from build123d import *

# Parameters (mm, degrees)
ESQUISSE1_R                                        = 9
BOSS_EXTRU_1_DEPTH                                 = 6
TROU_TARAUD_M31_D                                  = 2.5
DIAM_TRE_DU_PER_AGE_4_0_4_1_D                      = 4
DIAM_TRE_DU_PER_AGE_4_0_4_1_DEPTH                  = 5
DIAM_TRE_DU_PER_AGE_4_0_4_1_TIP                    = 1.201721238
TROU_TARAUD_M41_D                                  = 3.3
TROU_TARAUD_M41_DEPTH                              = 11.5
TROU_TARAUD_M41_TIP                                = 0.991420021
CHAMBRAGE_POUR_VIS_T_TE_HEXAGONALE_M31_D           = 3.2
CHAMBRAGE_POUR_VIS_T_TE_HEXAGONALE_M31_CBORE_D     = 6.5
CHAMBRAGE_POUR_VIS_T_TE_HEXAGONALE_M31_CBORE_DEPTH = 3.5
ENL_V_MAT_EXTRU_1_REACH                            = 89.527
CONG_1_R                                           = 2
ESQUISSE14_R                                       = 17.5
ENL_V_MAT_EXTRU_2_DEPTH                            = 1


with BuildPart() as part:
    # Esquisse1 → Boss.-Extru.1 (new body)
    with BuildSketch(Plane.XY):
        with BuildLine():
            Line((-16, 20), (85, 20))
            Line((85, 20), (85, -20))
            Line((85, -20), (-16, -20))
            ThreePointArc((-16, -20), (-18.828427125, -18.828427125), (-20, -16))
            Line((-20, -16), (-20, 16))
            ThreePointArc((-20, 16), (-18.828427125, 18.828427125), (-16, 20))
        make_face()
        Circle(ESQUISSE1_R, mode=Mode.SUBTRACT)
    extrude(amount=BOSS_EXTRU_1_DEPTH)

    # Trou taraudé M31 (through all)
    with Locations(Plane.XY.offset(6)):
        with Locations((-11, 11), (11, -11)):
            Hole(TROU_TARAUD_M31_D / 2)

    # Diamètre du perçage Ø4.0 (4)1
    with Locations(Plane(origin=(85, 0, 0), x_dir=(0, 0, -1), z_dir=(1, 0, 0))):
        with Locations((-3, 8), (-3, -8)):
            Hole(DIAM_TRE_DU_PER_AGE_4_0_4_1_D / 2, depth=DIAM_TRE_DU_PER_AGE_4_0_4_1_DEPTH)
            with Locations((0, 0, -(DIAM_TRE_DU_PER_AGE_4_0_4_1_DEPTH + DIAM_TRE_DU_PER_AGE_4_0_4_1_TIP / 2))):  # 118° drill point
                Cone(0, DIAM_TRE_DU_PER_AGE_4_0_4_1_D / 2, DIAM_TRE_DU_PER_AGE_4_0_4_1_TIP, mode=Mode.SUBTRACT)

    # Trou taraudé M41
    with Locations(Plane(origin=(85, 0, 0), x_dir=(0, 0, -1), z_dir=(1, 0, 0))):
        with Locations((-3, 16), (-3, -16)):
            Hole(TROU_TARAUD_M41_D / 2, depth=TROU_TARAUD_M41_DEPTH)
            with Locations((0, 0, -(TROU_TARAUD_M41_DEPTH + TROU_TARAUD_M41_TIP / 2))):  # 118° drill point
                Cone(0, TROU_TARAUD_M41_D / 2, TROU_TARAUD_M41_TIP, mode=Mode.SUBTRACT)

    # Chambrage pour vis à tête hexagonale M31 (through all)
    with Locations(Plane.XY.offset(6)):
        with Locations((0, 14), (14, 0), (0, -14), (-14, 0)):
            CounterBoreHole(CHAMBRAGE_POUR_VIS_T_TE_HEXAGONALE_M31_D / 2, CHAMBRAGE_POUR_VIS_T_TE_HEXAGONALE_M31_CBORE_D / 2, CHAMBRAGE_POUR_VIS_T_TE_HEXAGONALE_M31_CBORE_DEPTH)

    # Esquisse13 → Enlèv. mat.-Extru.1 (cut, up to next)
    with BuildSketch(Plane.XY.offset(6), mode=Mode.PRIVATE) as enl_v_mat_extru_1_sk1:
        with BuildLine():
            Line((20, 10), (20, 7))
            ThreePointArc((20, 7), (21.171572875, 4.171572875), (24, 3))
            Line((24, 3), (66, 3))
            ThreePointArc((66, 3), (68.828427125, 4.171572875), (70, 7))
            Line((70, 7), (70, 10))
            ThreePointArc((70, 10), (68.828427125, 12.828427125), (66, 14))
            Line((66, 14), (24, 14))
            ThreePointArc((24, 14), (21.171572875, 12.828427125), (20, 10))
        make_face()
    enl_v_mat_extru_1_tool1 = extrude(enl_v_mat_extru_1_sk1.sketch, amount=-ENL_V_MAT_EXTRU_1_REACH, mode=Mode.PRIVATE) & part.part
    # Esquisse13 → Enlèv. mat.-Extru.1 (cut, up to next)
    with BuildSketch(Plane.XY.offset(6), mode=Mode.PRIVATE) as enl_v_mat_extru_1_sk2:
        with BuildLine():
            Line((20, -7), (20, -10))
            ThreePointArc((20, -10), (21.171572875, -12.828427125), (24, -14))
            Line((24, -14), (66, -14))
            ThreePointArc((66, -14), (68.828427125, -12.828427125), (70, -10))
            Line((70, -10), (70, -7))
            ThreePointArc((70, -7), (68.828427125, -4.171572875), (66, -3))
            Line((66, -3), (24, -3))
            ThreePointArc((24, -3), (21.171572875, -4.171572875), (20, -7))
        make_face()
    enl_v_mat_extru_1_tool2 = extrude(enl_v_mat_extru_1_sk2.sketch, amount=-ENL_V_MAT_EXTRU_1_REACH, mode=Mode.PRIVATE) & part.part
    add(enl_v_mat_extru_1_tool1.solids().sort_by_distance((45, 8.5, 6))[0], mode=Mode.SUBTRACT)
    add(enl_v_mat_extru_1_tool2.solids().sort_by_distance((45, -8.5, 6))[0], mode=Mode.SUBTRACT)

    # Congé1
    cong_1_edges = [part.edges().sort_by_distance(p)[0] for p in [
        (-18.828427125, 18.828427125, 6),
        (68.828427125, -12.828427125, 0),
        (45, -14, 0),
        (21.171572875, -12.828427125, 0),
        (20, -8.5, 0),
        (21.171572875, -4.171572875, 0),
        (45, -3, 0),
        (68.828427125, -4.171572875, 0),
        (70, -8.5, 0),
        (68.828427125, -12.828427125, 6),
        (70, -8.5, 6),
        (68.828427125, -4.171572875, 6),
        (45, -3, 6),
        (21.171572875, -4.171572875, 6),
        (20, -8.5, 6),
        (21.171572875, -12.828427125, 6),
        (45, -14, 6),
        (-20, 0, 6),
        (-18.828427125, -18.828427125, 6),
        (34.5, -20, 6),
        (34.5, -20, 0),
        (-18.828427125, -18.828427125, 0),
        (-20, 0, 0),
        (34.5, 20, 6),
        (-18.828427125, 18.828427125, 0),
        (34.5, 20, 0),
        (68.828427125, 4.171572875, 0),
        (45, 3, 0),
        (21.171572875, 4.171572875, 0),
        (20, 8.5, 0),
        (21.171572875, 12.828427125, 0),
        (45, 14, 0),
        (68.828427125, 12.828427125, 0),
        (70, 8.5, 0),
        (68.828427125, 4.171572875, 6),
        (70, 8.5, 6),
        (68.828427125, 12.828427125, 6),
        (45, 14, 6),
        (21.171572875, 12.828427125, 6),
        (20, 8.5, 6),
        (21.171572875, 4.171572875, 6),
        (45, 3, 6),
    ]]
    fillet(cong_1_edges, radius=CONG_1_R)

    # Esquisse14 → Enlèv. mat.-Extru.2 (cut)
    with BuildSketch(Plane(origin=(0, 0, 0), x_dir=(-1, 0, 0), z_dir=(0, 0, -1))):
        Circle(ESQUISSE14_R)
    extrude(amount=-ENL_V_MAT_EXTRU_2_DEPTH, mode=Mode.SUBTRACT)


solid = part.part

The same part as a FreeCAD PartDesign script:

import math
import FreeCAD as App
import Part
import Sketcher

V = App.Vector
Q = App.Units.Quantity


def edges_at(feature, points):
    """Names of the edges that pass closest to the given points."""
    edges = feature.Shape.Edges
    near = lambda p: min(range(len(edges)), key=lambda i: edges[i].distToShape(Part.Vertex(*p))[0])
    return sorted({f"Edge{near(p) + 1}" for p in points})

doc = App.newDocument("Part")
body = doc.addObject("PartDesign::Body", "Body")

sketch1 = doc.addObject("Sketcher::SketchObject", "Sketch")
body.addObject(sketch1)
sketch1.AttachmentSupport = (doc.XY_Plane, [""])
sketch1.MapMode = "FlatFace"
sketch1.addGeometry(Part.LineSegment(V(85, 20, 0), V(-16, 20, 0)), False)
sketch1.addGeometry(Part.ArcOfCircle(Part.Circle(V(-16, 16, 0), V(0, 0, 1), 4), math.radians(90), math.radians(180)), False)
sketch1.addGeometry(Part.LineSegment(V(-20, 16, 0), V(-20, -16, 0)), False)
sketch1.addGeometry(Part.ArcOfCircle(Part.Circle(V(-16, -16, 0), V(0, 0, 1), 4), math.radians(180), math.radians(270)), False)
sketch1.addGeometry(Part.LineSegment(V(-16, -20, 0), V(85, -20, 0)), False)
sketch1.addGeometry(Part.LineSegment(V(85, -20, 0), V(85, 20, 0)), False)
sketch1.addGeometry(Part.Circle(V(0, 0, 0), V(0, 0, 1), 9), False)
sketch1.addConstraint(Sketcher.Constraint("Tangent", 0, 2, 1, 1))
sketch1.addConstraint(Sketcher.Constraint("Tangent", 1, 2, 2, 1))
sketch1.addConstraint(Sketcher.Constraint("Tangent", 2, 2, 3, 1))
sketch1.addConstraint(Sketcher.Constraint("Tangent", 3, 2, 4, 1))
sketch1.addConstraint(Sketcher.Constraint("Coincident", 4, 2, 5, 1))
sketch1.addConstraint(Sketcher.Constraint("Coincident", 5, 2, 0, 1))
sketch1.addConstraint(Sketcher.Constraint("Horizontal", 0))
sketch1.addConstraint(Sketcher.Constraint("Vertical", 2))
sketch1.addConstraint(Sketcher.Constraint("Horizontal", 4))
sketch1.addConstraint(Sketcher.Constraint("Vertical", 5))
sketch1.addConstraint(Sketcher.Constraint("Coincident", 6, 3, -1, 1))
sketch1.addConstraint(Sketcher.Constraint("Equal", 1, 3))
sketch1.addConstraint(Sketcher.Constraint("Diameter", 6, Q("18 mm")))
sketch1.addConstraint(Sketcher.Constraint("Radius", 1, Q("4 mm")))
sketch1.addConstraint(Sketcher.Constraint("DistanceX", 0, 2, 0, 1, Q("101 mm")))
sketch1.addConstraint(Sketcher.Constraint("DistanceY", 2, 2, 2, 1, Q("32 mm")))
sketch1.addConstraint(Sketcher.Constraint("DistanceX", 1, 3, -1, 1, Q("16 mm")))
sketch1.addConstraint(Sketcher.Constraint("DistanceY", -1, 1, 1, 3, Q("16 mm")))
pad1 = doc.addObject("PartDesign::Pad", "Pad")
body.addObject(pad1)
pad1.Profile = sketch1
pad1.Length = 6

sketch2 = doc.addObject("Sketcher::SketchObject", "Sketch001")
body.addObject(sketch2)
sketch2.AttachmentSupport = (doc.XY_Plane, [""])
sketch2.MapMode = "FlatFace"
sketch2.AttachmentOffset = App.Placement(V(0, 0, 6), App.Rotation())
sketch2.addGeometry(Part.Circle(V(-11, 11, 0), V(0, 0, 1), 1.25), False)
sketch2.addGeometry(Part.Circle(V(11, -11, 0), V(0, 0, 1), 1.25), False)
sketch2.addConstraint(Sketcher.Constraint("Equal", 0, 1))
sketch2.addConstraint(Sketcher.Constraint("Symmetric", 0, 3, 1, 3, -1, 1))
sketch2.addConstraint(Sketcher.Constraint("Diameter", 0, Q("2.5 mm")))
sketch2.addConstraint(Sketcher.Constraint("DistanceX", 0, 3, -1, 1, Q("11 mm")))
sketch2.addConstraint(Sketcher.Constraint("DistanceY", -1, 1, 0, 3, Q("11 mm")))
doc.recompute()
hole = doc.addObject("PartDesign::Hole", "Hole")
body.addObject(hole)
hole.Profile = sketch2
hole.ThreadType = "None"
hole.Diameter = 2.5
hole.DepthType = "ThroughAll"

sketch3 = doc.addObject("Sketcher::SketchObject", "Sketch002")
body.addObject(sketch3)
sketch3.AttachmentSupport = (doc.YZ_Plane, [""])
sketch3.MapMode = "FlatFace"
sketch3.AttachmentOffset = App.Placement(V(0, 0, 85), App.Rotation())
sketch3.addGeometry(Part.Circle(V(8, 3, 0), V(0, 0, 1), 2), False)
sketch3.addGeometry(Part.Circle(V(-8, 3, 0), V(0, 0, 1), 2), False)
sketch3.addConstraint(Sketcher.Constraint("Equal", 0, 1))
sketch3.addConstraint(Sketcher.Constraint("Symmetric", 0, 3, 1, 3, -2))
sketch3.addConstraint(Sketcher.Constraint("Diameter", 0, Q("4 mm")))
sketch3.addConstraint(Sketcher.Constraint("DistanceX", -1, 1, 0, 3, Q("8 mm")))
sketch3.addConstraint(Sketcher.Constraint("DistanceY", -1, 1, 0, 3, Q("3 mm")))
doc.recompute()
hole2 = doc.addObject("PartDesign::Hole", "Hole001")
body.addObject(hole2)
hole2.Profile = sketch3
hole2.ThreadType = "None"
hole2.Diameter = 4
hole2.DepthType = "Dimension"
hole2.Depth = 5
hole2.DrillPoint = "Angled"
hole2.DrillPointAngle = 118

sketch4 = doc.addObject("Sketcher::SketchObject", "Sketch003")
body.addObject(sketch4)
sketch4.AttachmentSupport = (doc.YZ_Plane, [""])
sketch4.MapMode = "FlatFace"
sketch4.AttachmentOffset = App.Placement(V(0, 0, 85), App.Rotation())
sketch4.addGeometry(Part.Circle(V(16, 3, 0), V(0, 0, 1), 1.65), False)
sketch4.addGeometry(Part.Circle(V(-16, 3, 0), V(0, 0, 1), 1.65), False)
sketch4.addConstraint(Sketcher.Constraint("Equal", 0, 1))
sketch4.addConstraint(Sketcher.Constraint("Symmetric", 0, 3, 1, 3, -2))
sketch4.addConstraint(Sketcher.Constraint("Diameter", 0, Q("3.3 mm")))
sketch4.addConstraint(Sketcher.Constraint("DistanceX", -1, 1, 0, 3, Q("16 mm")))
sketch4.addConstraint(Sketcher.Constraint("DistanceY", -1, 1, 0, 3, Q("3 mm")))
doc.recompute()
hole3 = doc.addObject("PartDesign::Hole", "Hole002")
body.addObject(hole3)
hole3.Profile = sketch4
hole3.ThreadType = "None"
hole3.Diameter = 3.3
hole3.DepthType = "Dimension"
hole3.Depth = 11.5
hole3.DrillPoint = "Angled"
hole3.DrillPointAngle = 118

sketch5 = doc.addObject("Sketcher::SketchObject", "Sketch004")
body.addObject(sketch5)
sketch5.AttachmentSupport = (doc.XY_Plane, [""])
sketch5.MapMode = "FlatFace"
sketch5.AttachmentOffset = App.Placement(V(0, 0, 6), App.Rotation())
sketch5.addGeometry(Part.Circle(V(0, 14, 0), V(0, 0, 1), 1.6), False)
sketch5.addGeometry(Part.Circle(V(14, 0, 0), V(0, 0, 1), 1.6), False)
sketch5.addGeometry(Part.Circle(V(0, -14, 0), V(0, 0, 1), 1.6), False)
sketch5.addGeometry(Part.Circle(V(-14, 0, 0), V(0, 0, 1), 1.6), False)
sketch5.addConstraint(Sketcher.Constraint("Equal", 0, 1))
sketch5.addConstraint(Sketcher.Constraint("Equal", 1, 2))
sketch5.addConstraint(Sketcher.Constraint("Equal", 2, 3))
sketch5.addConstraint(Sketcher.Constraint("Symmetric", 0, 3, 2, 3, -1, 1))
sketch5.addConstraint(Sketcher.Constraint("Symmetric", 1, 3, 3, 3, -1, 1))
sketch5.addConstraint(Sketcher.Constraint("PointOnObject", 0, 3, -2))
sketch5.addConstraint(Sketcher.Constraint("PointOnObject", 1, 3, -1))
sketch5.addConstraint(Sketcher.Constraint("Diameter", 0, Q("3.2 mm")))
sketch5.addConstraint(Sketcher.Constraint("DistanceY", -1, 1, 0, 3, Q("14 mm")))
sketch5.addConstraint(Sketcher.Constraint("DistanceX", -1, 1, 1, 3, Q("14 mm")))
doc.recompute()
hole4 = doc.addObject("PartDesign::Hole", "Hole003")
body.addObject(hole4)
hole4.Profile = sketch5
hole4.ThreadType = "None"
hole4.Diameter = 3.2
hole4.DepthType = "ThroughAll"
hole4.HoleCutType = "Counterbore"
hole4.HoleCutDiameter = 6.5
hole4.HoleCutDepth = 3.5

sketch6 = doc.addObject("Sketcher::SketchObject", "Sketch005")
body.addObject(sketch6)
sketch6.AttachmentSupport = (doc.XY_Plane, [""])
sketch6.MapMode = "FlatFace"
sketch6.AttachmentOffset = App.Placement(V(0, 0, 6), App.Rotation())
sketch6.addGeometry(Part.LineSegment(V(20, 10, 0), V(20, 7, 0)), False)
sketch6.addGeometry(Part.ArcOfCircle(Part.Circle(V(24, 7, 0), V(0, 0, 1), 4), math.radians(180), math.radians(270)), False)
sketch6.addGeometry(Part.LineSegment(V(24, 3, 0), V(66, 3, 0)), False)
sketch6.addGeometry(Part.ArcOfCircle(Part.Circle(V(66, 7, 0), V(0, 0, 1), 4), math.radians(-90), math.radians(0)), False)
sketch6.addGeometry(Part.LineSegment(V(70, 7, 0), V(70, 10, 0)), False)
sketch6.addGeometry(Part.ArcOfCircle(Part.Circle(V(66, 10, 0), V(0, 0, 1), 4), math.radians(0), math.radians(90)), False)
sketch6.addGeometry(Part.LineSegment(V(66, 14, 0), V(24, 14, 0)), False)
sketch6.addGeometry(Part.ArcOfCircle(Part.Circle(V(24, 10, 0), V(0, 0, 1), 4), math.radians(90), math.radians(180)), False)
sketch6.addConstraint(Sketcher.Constraint("Tangent", 0, 2, 1, 1))
sketch6.addConstraint(Sketcher.Constraint("Tangent", 1, 2, 2, 1))
sketch6.addConstraint(Sketcher.Constraint("Tangent", 2, 2, 3, 1))
sketch6.addConstraint(Sketcher.Constraint("Tangent", 3, 2, 4, 1))
sketch6.addConstraint(Sketcher.Constraint("Tangent", 4, 2, 5, 1))
sketch6.addConstraint(Sketcher.Constraint("Tangent", 5, 2, 6, 1))
sketch6.addConstraint(Sketcher.Constraint("Tangent", 6, 2, 7, 1))
sketch6.addConstraint(Sketcher.Constraint("Tangent", 7, 2, 0, 1))
sketch6.addConstraint(Sketcher.Constraint("Vertical", 0))
sketch6.addConstraint(Sketcher.Constraint("Horizontal", 2))
sketch6.addConstraint(Sketcher.Constraint("Vertical", 4))
sketch6.addConstraint(Sketcher.Constraint("Horizontal", 6))
sketch6.addConstraint(Sketcher.Constraint("Equal", 1, 3))
sketch6.addConstraint(Sketcher.Constraint("Equal", 3, 5))
sketch6.addConstraint(Sketcher.Constraint("Equal", 5, 7))
sketch6.addConstraint(Sketcher.Constraint("Radius", 1, Q("4 mm")))
sketch6.addConstraint(Sketcher.Constraint("DistanceX", 2, 1, 2, 2, Q("42 mm")))
sketch6.addConstraint(Sketcher.Constraint("DistanceY", 0, 2, 0, 1, Q("3 mm")))
sketch6.addConstraint(Sketcher.Constraint("DistanceX", -1, 1, 1, 3, Q("24 mm")))
sketch6.addConstraint(Sketcher.Constraint("DistanceY", -1, 1, 1, 3, Q("7 mm")))
pocket1 = doc.addObject("PartDesign::Pocket", "Pocket")
body.addObject(pocket1)
pocket1.Profile = sketch6
pocket1.Type = "UpToFirst"

sketch7 = doc.addObject("Sketcher::SketchObject", "Sketch006")
body.addObject(sketch7)
sketch7.AttachmentSupport = (doc.XY_Plane, [""])
sketch7.MapMode = "FlatFace"
sketch7.AttachmentOffset = App.Placement(V(0, 0, 6), App.Rotation())
sketch7.addGeometry(Part.LineSegment(V(20, -7, 0), V(20, -10, 0)), False)
sketch7.addGeometry(Part.ArcOfCircle(Part.Circle(V(24, -10, 0), V(0, 0, 1), 4), math.radians(180), math.radians(270)), False)
sketch7.addGeometry(Part.LineSegment(V(24, -14, 0), V(66, -14, 0)), False)
sketch7.addGeometry(Part.ArcOfCircle(Part.Circle(V(66, -10, 0), V(0, 0, 1), 4), math.radians(-90), math.radians(0)), False)
sketch7.addGeometry(Part.LineSegment(V(70, -10, 0), V(70, -7, 0)), False)
sketch7.addGeometry(Part.ArcOfCircle(Part.Circle(V(66, -7, 0), V(0, 0, 1), 4), math.radians(0), math.radians(90)), False)
sketch7.addGeometry(Part.LineSegment(V(66, -3, 0), V(24, -3, 0)), False)
sketch7.addGeometry(Part.ArcOfCircle(Part.Circle(V(24, -7, 0), V(0, 0, 1), 4), math.radians(90), math.radians(180)), False)
sketch7.addConstraint(Sketcher.Constraint("Tangent", 0, 2, 1, 1))
sketch7.addConstraint(Sketcher.Constraint("Tangent", 1, 2, 2, 1))
sketch7.addConstraint(Sketcher.Constraint("Tangent", 2, 2, 3, 1))
sketch7.addConstraint(Sketcher.Constraint("Tangent", 3, 2, 4, 1))
sketch7.addConstraint(Sketcher.Constraint("Tangent", 4, 2, 5, 1))
sketch7.addConstraint(Sketcher.Constraint("Tangent", 5, 2, 6, 1))
sketch7.addConstraint(Sketcher.Constraint("Tangent", 6, 2, 7, 1))
sketch7.addConstraint(Sketcher.Constraint("Tangent", 7, 2, 0, 1))
sketch7.addConstraint(Sketcher.Constraint("Vertical", 0))
sketch7.addConstraint(Sketcher.Constraint("Horizontal", 2))
sketch7.addConstraint(Sketcher.Constraint("Vertical", 4))
sketch7.addConstraint(Sketcher.Constraint("Horizontal", 6))
sketch7.addConstraint(Sketcher.Constraint("Equal", 1, 3))
sketch7.addConstraint(Sketcher.Constraint("Equal", 3, 5))
sketch7.addConstraint(Sketcher.Constraint("Equal", 5, 7))
sketch7.addConstraint(Sketcher.Constraint("Radius", 1, Q("4 mm")))
sketch7.addConstraint(Sketcher.Constraint("DistanceX", 2, 1, 2, 2, Q("42 mm")))
sketch7.addConstraint(Sketcher.Constraint("DistanceY", 0, 2, 0, 1, Q("3 mm")))
sketch7.addConstraint(Sketcher.Constraint("DistanceX", -1, 1, 1, 3, Q("24 mm")))
sketch7.addConstraint(Sketcher.Constraint("DistanceY", 1, 3, -1, 1, Q("10 mm")))
pocket2 = doc.addObject("PartDesign::Pocket", "Pocket001")
body.addObject(pocket2)
pocket2.Profile = sketch7
pocket2.Type = "UpToFirst"
doc.recompute()

fillet = doc.addObject("PartDesign::Fillet", "Fillet")
body.addObject(fillet)
fillet.Base = (pocket2, edges_at(pocket2, [
    (-18.828, 18.828, 6),
    (68.828, -12.828, 0),
    (45, -14, 0),
    (21.172, -12.828, 0),
    (20, -8.5, 0),
    (21.172, -4.172, 0),
    (45, -3, 0),
    (68.828, -4.172, 0),
    (70, -8.5, 0),
    (68.828, -12.828, 6),
    (70, -8.5, 6),
    (68.828, -4.172, 6),
    (45, -3, 6),
    (21.172, -4.172, 6),
    (20, -8.5, 6),
    (21.172, -12.828, 6),
    (45, -14, 6),
    (-20, 0, 6),
    (-18.828, -18.828, 6),
    (34.5, -20, 6),
    (34.5, -20, 0),
    (-18.828, -18.828, 0),
    (-20, 0, 0),
    (34.5, 20, 6),
    (-18.828, 18.828, 0),
    (34.5, 20, 0),
    (68.828, 4.172, 0),
    (45, 3, 0),
    (21.172, 4.172, 0),
    (20, 8.5, 0),
    (21.172, 12.828, 0),
    (45, 14, 0),
    (68.828, 12.828, 0),
    (70, 8.5, 0),
    (68.828, 4.172, 6),
    (70, 8.5, 6),
    (68.828, 12.828, 6),
    (45, 14, 6),
    (21.172, 12.828, 6),
    (20, 8.5, 6),
    (21.172, 4.172, 6),
    (45, 3, 6),
]))
fillet.Radius = 2

sketch8 = doc.addObject("Sketcher::SketchObject", "Sketch007")
body.addObject(sketch8)
sketch8.AttachmentSupport = (doc.XY_Plane, [""])
sketch8.MapMode = "FlatFace"
sketch8.addGeometry(Part.Circle(V(0, 0, 0), V(0, 0, 1), 17.5), False)
sketch8.addConstraint(Sketcher.Constraint("Coincident", 0, 3, -1, 1))
sketch8.addConstraint(Sketcher.Constraint("Diameter", 0, Q("35 mm")))
pocket3 = doc.addObject("PartDesign::Pocket", "Pocket002")
body.addObject(pocket3)
pocket3.Profile = sketch8
pocket3.Length = 1
pocket3.Reversed = True

doc.recompute()
